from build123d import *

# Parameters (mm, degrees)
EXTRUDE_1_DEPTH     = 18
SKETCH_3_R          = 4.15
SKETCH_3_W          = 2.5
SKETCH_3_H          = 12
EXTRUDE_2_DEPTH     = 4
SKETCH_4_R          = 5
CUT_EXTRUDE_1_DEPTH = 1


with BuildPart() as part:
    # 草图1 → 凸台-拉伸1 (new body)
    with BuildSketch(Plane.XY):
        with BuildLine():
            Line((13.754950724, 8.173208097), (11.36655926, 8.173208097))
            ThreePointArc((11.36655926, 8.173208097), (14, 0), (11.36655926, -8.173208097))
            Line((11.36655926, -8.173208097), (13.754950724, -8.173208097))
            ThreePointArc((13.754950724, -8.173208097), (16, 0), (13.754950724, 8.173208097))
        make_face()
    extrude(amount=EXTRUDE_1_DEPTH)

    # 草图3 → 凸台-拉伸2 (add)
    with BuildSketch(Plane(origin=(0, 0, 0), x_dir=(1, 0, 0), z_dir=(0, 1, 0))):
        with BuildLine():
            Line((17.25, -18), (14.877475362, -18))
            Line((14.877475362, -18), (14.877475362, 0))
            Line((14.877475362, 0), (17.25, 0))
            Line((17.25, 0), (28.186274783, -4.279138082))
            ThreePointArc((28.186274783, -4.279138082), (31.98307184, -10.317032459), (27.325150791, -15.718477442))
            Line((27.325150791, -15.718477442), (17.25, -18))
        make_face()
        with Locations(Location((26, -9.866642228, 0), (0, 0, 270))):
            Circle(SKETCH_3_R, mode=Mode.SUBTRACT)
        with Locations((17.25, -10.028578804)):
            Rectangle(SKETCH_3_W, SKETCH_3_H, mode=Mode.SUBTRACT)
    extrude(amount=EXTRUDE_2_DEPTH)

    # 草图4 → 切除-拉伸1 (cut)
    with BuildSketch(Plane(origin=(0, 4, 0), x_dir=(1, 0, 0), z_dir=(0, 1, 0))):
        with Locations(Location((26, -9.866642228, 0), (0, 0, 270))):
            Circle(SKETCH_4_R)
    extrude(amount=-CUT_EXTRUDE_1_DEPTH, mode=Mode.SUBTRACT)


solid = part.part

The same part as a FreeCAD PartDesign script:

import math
import FreeCAD as App
import Part
import Sketcher

V = App.Vector


def add_polygon(sketch, points):
    """Adds a closed chain of lines whose ends are joined by coincident constraints."""
    first, n = sketch.GeometryCount, len(points)
    for a, b in zip(points, points[1:] + points[:1]):
        sketch.addGeometry(Part.LineSegment(App.Vector(*a, 0), App.Vector(*b, 0)), False)
    for i in range(n):
        sketch.addConstraint(Sketcher.Constraint("Coincident", first + i, 2, first + (i + 1) % n, 1))

doc = App.newDocument("Part")
params = doc.addObject("Spreadsheet::Sheet", "Params")
for row, (alias, value) in enumerate([
    ("sketch1_radius", "14 mm"),
    ("sketch1_radius2", "16 mm"),
    ("pad1_length", "18 mm"),
    ("sketch2_radius", "6 mm"),
    ("sketch2_diameter", "8.3 mm"),
    ("sketch2_height", "18 mm"),
    ("sketch2_height2", "12 mm"),
    ("sketch2_width", "2.5 mm"),
    ("pad2_length", "4 mm"),
    ("sketch3_diameter", "10 mm"),
    ("pocket1_length", "1 mm"),
], start=1):
    params.set(f"A{row}", alias)
    params.set(f"B{row}", "=" + value)
    params.setAlias(f"B{row}", alias)

body = doc.addObject("PartDesign::Body", "Body")

sketch1 = doc.addObject("Sketcher::SketchObject", "Sketch")
body.addObject(sketch1)
sketch1.AttachmentSupport = (doc.XY_Plane, [""])
sketch1.MapMode = "FlatFace"
sketch1.addGeometry(Part.LineSegment(V(13.754951, 8.173208, 0), V(11.366559, 8.173208, 0)), False)
sketch1.addGeometry(Part.ArcOfCircle(Part.Circle(V(0, 0, 0), V(0, 0, 1), 14), math.radians(-35.718301), math.radians(35.718301)), False)
sketch1.addGeometry(Part.LineSegment(V(11.366559, -8.173208, 0), V(13.754951, -8.173208, 0)), False)
sketch1.addGeometry(Part.ArcOfCircle(Part.Circle(V(0, 0, 0), V(0, 0, 1), 16), math.radians(-30.718832), math.radians(30.718832)), False)
sketch1.addConstraint(Sketcher.Constraint("Coincident", 0, 2, 1, 2))
sketch1.addConstraint(Sketcher.Constraint("Coincident", 1, 1, 2, 1))
sketch1.addConstraint(Sketcher.Constraint("Coincident", 2, 2, 3, 1))
sketch1.addConstraint(Sketcher.Constraint("Coincident", 3, 2, 0, 1))
sketch1.addConstraint(Sketcher.Constraint("Horizontal", 0))
sketch1.addConstraint(Sketcher.Constraint("Horizontal", 2))
sketch1.addConstraint(Sketcher.Constraint("Coincident", 1, 3, -1, 1))
sketch1.addConstraint(Sketcher.Constraint("Coincident", 3, 3, -1, 1))
sketch1.addConstraint(Sketcher.Constraint("Vertical", 0, 2, 1, 1))
sketch1.addConstraint(Sketcher.Constraint("Radius", 1, 14.0))
sketch1.addConstraint(Sketcher.Constraint("Radius", 3, 16.0))
sketch1.addConstraint(Sketcher.Constraint("DistanceX", 0, 2, 0, 1, 2.388391))
sketch1.setExpression("Constraints[9]", "Params.sketch1_radius")
sketch1.setExpression("Constraints[10]", "Params.sketch1_radius2")
pad1 = doc.addObject("PartDesign::Pad", "Pad")
body.addObject(pad1)
pad1.Profile = sketch1
pad1.setExpression("Length", "Params.pad1_length")

sketch2 = doc.addObject("Sketcher::SketchObject", "Sketch001")
body.addObject(sketch2)
sketch2.AttachmentSupport = (doc.XZ_Plane, [""])
sketch2.MapMode = "FlatFace"
sketch2.addGeometry(Part.LineSegment(V(14.877475, 18, 0), V(17.25, 18, 0)), False)
sketch2.addGeometry(Part.LineSegment(V(17.25, 18, 0), V(27.325151, 15.718477, 0)), False)
sketch2.addGeometry(Part.ArcOfCircle(Part.Circle(V(26, 9.866642, 0), V(0, 0, 1), 6), math.radians(-68.630622), math.radians(77.24054)), False)
sketch2.addGeometry(Part.LineSegment(V(28.186275, 4.279138, 0), V(17.25, 0, 0)), False)
sketch2.addGeometry(Part.LineSegment(V(17.25, 0, 0), V(14.877475, 0, 0)), False)
sketch2.addGeometry(Part.LineSegment(V(14.877475, 0, 0), V(14.877475, 18, 0)), False)
sketch2.addGeometry(Part.Circle(V(26, 9.866642, 0), V(0, 0, 1), 4.15), False)
add_polygon(sketch2, [(16, 16.028579), (16, 4.028579), (18.5, 4.028579), (18.5, 16.028579)])
sketch2.addConstraint(Sketcher.Constraint("Coincident", 0, 2, 1, 1))
sketch2.addConstraint(Sketcher.Constraint("Tangent", 1, 2, 2, 2))
sketch2.addConstraint(Sketcher.Constraint("Tangent", 2, 1, 3, 1))
sketch2.addConstraint(Sketcher.Constraint("Coincident", 3, 2, 4, 1))
sketch2.addConstraint(Sketcher.Constraint("Coincident", 4, 2, 5, 1))
sketch2.addConstraint(Sketcher.Constraint("Coincident", 5, 2, 0, 1))
sketch2.addConstraint(Sketcher.Constraint("Horizontal", 0))
sketch2.addConstraint(Sketcher.Constraint("Horizontal", 4))
sketch2.addConstraint(Sketcher.Constraint("Vertical", 5))
sketch2.addConstraint(Sketcher.Constraint("Vertical", 7))
sketch2.addConstraint(Sketcher.Constraint("Horizontal", 8))
sketch2.addConstraint(Sketcher.Constraint("Vertical", 9))
sketch2.addConstraint(Sketcher.Constraint("Horizontal", 10))
sketch2.addConstraint(Sketcher.Constraint("Coincident", 6, 3, 2, 3))
sketch2.addConstraint(Sketcher.Constraint("PointOnObject", 3, 2, -1))
sketch2.addConstraint(Sketcher.Constraint("Vertical", 0, 2, 3, 2))
sketch2.addConstraint(Sketcher.Constraint("Radius", 2, 6.0))
sketch2.addConstraint(Sketcher.Constraint("Diameter", 6, 8.3))
sketch2.addConstraint(Sketcher.Constraint("DistanceY", 5, 1, 5, 2, 18.0))
sketch2.addConstraint(Sketcher.Constraint("DistanceY", 7, 2, 7, 1, 12.0))
sketch2.addConstraint(Sketcher.Constraint("DistanceX", 8, 1, 8, 2, 2.5))
sketch2.addConstraint(Sketcher.Constraint("DistanceX", -1, 1, 2, 3, 26.0))
sketch2.addConstraint(Sketcher.Constraint("DistanceX", -1, 1, 7, 2, 16.0))
sketch2.addConstraint(Sketcher.Constraint("DistanceX", -1, 1, 0, 2, 17.25))
sketch2.addConstraint(Sketcher.Constraint("DistanceX", 4, 2, 2, 1, 13.308799))
sketch2.addConstraint(Sketcher.Constraint("DistanceY", 1, 2, 9, 2, 0.310101))
sketch2.addConstraint(Sketcher.Constraint("DistanceX", 0, 1, 0, 2, 2.372525))
sketch2.setExpression("Constraints[20]", "Params.sketch2_radius")
sketch2.setExpression("Constraints[21]", "Params.sketch2_diameter")
sketch2.setExpression("Constraints[22]", "Params.sketch2_height")
sketch2.setExpression("Constraints[23]", "Params.sketch2_height2")
sketch2.setExpression("Constraints[24]", "Params.sketch2_width")
pad2 = doc.addObject("PartDesign::Pad", "Pad001")
body.addObject(pad2)
pad2.Profile = sketch2
pad2.setExpression("Length", "Params.pad2_length")
pad2.Reversed = True

sketch3 = doc.addObject("Sketcher::SketchObject", "Sketch002")
body.addObject(sketch3)
sketch3.AttachmentSupport = (doc.XZ_Plane, [""])
sketch3.MapMode = "FlatFace"
sketch3.AttachmentOffset = App.Placement(V(0, 0, -4), App.Rotation())
sketch3.addGeometry(Part.Circle(V(26, 9.866642, 0), V(0, 0, 1), 5), False)
sketch3.addConstraint(Sketcher.Constraint("Diameter", 0, 10.0))
sketch3.addConstraint(Sketcher.Constraint("DistanceX", -1, 1, 0, 3, 26.0))
sketch3.addConstraint(Sketcher.Constraint("DistanceY", -1, 1, 0, 3, 9.866642))
sketch3.setExpression("Constraints[0]", "Params.sketch3_diameter")
pocket1 = doc.addObject("PartDesign::Pocket", "Pocket")
body.addObject(pocket1)
pocket1.Profile = sketch3
pocket1.setExpression("Length", "Params.pocket1_length")
pocket1.Reversed = True

doc.recompute()
